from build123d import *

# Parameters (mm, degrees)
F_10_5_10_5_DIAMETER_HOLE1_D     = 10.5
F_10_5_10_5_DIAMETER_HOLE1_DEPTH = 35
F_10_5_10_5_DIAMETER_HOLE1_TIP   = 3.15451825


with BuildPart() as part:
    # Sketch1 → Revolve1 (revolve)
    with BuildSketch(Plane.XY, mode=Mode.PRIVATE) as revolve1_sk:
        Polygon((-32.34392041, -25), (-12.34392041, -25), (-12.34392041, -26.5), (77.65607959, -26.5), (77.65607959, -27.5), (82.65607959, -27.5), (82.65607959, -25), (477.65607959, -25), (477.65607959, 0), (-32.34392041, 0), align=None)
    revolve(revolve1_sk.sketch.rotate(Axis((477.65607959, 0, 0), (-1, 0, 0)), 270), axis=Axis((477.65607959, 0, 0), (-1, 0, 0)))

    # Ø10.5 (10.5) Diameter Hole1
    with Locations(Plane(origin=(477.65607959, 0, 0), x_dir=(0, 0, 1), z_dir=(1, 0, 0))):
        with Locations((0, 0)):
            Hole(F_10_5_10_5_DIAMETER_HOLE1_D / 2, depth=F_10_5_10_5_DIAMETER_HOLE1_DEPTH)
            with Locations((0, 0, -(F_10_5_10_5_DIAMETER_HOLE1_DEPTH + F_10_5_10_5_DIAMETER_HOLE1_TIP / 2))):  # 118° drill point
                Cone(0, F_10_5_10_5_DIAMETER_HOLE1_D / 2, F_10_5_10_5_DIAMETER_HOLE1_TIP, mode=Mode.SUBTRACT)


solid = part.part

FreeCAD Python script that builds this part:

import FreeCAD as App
import Part
import Sketcher

V = App.Vector

doc = App.newDocument("Part")
params = doc.addObject("Spreadsheet::Sheet", "Params")
for row, (alias, value) in enumerate([
    ("sketch1_width", "20 mm"),
    ("sketch1_width2", "90 mm"),
    ("sketch1_width3", "5 mm"),
    ("sketch1_width4", "395 mm"),
    ("sketch1_height", "1 mm"),
    ("revolution_angle", "360 deg"),
    ("sketch2_diameter", "10.5 mm"),
    ("hole_diameter", "10.5 mm"),
    ("hole_depth", "35 mm"),
], start=1):
    params.set(f"A{row}", alias)
    params.set(f"B{row}", "=" + value)
    params.setAlias(f"B{row}", alias)

body = doc.addObject("PartDesign::Body", "Body")

# Sketch on XY plane
sketch1 = body.newObject("Sketcher::SketchObject", "Sketch")
sketch1.AttachmentSupport = (doc.getObject("XY_Plane"), [""])
sketch1.MapMode = "FlatFace"
sketch1.addGeometry(Part.LineSegment(V(-32.3, -25, 0), V(-12.3, -25, 0)), False)
sketch1.addGeometry(Part.LineSegment(V(-12.3, -25, 0), V(-12.3, -26.5, 0)), False)
sketch1.addGeometry(Part.LineSegment(V(-12.3, -26.5, 0), V(77.7, -26.5, 0)), False)
sketch1.addGeometry(Part.LineSegment(V(77.7, -26.5, 0), V(77.7, -27.5, 0)), False)
sketch1.addGeometry(Part.LineSegment(V(77.7, -27.5, 0), V(82.7, -27.5, 0)), False)
sketch1.addGeometry(Part.LineSegment(V(82.7, -27.5, 0), V(82.7, -25, 0)), False)
sketch1.addGeometry(Part.LineSegment(V(82.7, -25, 0), V(477.7, -25, 0)), False)
sketch1.addGeometry(Part.LineSegment(V(477.7, -25, 0), V(477.7, 0, 0)), False)
sketch1.addGeometry(Part.LineSegment(V(477.7, 0, 0), V(-32.3, 0, 0)), False)
sketch1.addGeometry(Part.LineSegment(V(-32.3, 0, 0), V(-32.3, -25, 0)), False)
sketch1.addConstraint(Sketcher.Constraint("Coincident", 0, 2, 1, 1))
sketch1.addConstraint(Sketcher.Constraint("Coincident", 1, 2, 2, 1))
sketch1.addConstraint(Sketcher.Constraint("Coincident", 2, 2, 3, 1))
sketch1.addConstraint(Sketcher.Constraint("Coincident", 3, 2, 4, 1))
sketch1.addConstraint(Sketcher.Constraint("Coincident", 4, 2, 5, 1))
sketch1.addConstraint(Sketcher.Constraint("Coincident", 5, 2, 6, 1))
sketch1.addConstraint(Sketcher.Constraint("Coincident", 6, 2, 7, 1))
sketch1.addConstraint(Sketcher.Constraint("Coincident", 7, 2, 8, 1))
sketch1.addConstraint(Sketcher.Constraint("Coincident", 8, 2, 9, 1))
sketch1.addConstraint(Sketcher.Constraint("Coincident", 9, 2, 0, 1))
sketch1.addConstraint(Sketcher.Constraint("Horizontal", 0))
sketch1.addConstraint(Sketcher.Constraint("Vertical", 1))
sketch1.addConstraint(Sketcher.Constraint("Horizontal", 2))
sketch1.addConstraint(Sketcher.Constraint("Vertical", 3))
sketch1.addConstraint(Sketcher.Constraint("Horizontal", 4))
sketch1.addConstraint(Sketcher.Constraint("Vertical", 5))
sketch1.addConstraint(Sketcher.Constraint("Horizontal", 6))
sketch1.addConstraint(Sketcher.Constraint("Vertical", 7))
sketch1.addConstraint(Sketcher.Constraint("Horizontal", 8))
sketch1.addConstraint(Sketcher.Constraint("Vertical", 9))
sketch1.addConstraint(Sketcher.Constraint("PointOnObject", 7, 2, -1))
sketch1.addConstraint(Sketcher.Constraint("Horizontal", 0, 2, 5, 2))
sketch1.addConstraint(Sketcher.Constraint("DistanceX", 0, 1, 0, 2, 20.0))
sketch1.addConstraint(Sketcher.Constraint("DistanceX", 2, 1, 2, 2, 90.0))
sketch1.addConstraint(Sketcher.Constraint("DistanceX", 4, 1, 4, 2, 5.0))
sketch1.addConstraint(Sketcher.Constraint("DistanceX", 6, 1, 6, 2, 395.0))
sketch1.addConstraint(Sketcher.Constraint("DistanceY", 3, 2, 3, 1, 1.0))
sketch1.addConstraint(Sketcher.Constraint("DistanceY", 7, 1, 7, 2, 25.0))
sketch1.addConstraint(Sketcher.Constraint("DistanceY", 1, 2, 1, 1, 1.5))
sketch1.addConstraint(Sketcher.Constraint("DistanceX", 0, 2, -1, 1, 12.34392))
sketch1.setExpression("Constraints[22]", "Params.sketch1_width")
sketch1.setExpression("Constraints[23]", "Params.sketch1_width2")
sketch1.setExpression("Constraints[24]", "Params.sketch1_width3")
sketch1.setExpression("Constraints[25]", "Params.sketch1_width4")
sketch1.setExpression("Constraints[26]", "Params.sketch1_height")
revolution = body.newObject("PartDesign::Revolution", "Revolution")
revolution.Profile = sketch1
revolution.ReferenceAxis = (sketch1, ["H_Axis"])
revolution.setExpression("Angle", "Params.revolution_angle")

# Sketch on YZ plane
sketch2 = body.newObject("Sketcher::SketchObject", "Sketch001")
sketch2.AttachmentSupport = (doc.getObject("YZ_Plane"), [""])
sketch2.MapMode = "FlatFace"
sketch2.AttachmentOffset = App.Placement(V(0, 0, 477.65608), App.Rotation())
sketch2.addGeometry(Part.Circle(V(0, 0, 0), V(0, 0, 1), 5), False)
sketch2.addConstraint(Sketcher.Constraint("Coincident", 0, 3, -1, 1))
sketch2.addConstraint(Sketcher.Constraint("Diameter", 0, 10.5))
sketch2.setExpression("Constraints[1]", "Params.sketch2_diameter")
doc.recompute()
hole = body.newObject("PartDesign::Hole", "Hole")
hole.Profile = sketch2
hole.ThreadType = "None"
hole.setExpression("Diameter", "Params.hole_diameter")
hole.DepthType = "Dimension"
hole.setExpression("Depth", "Params.hole_depth")
hole.DrillPoint = "Angled"
hole.DrillPointAngle = 118

doc.recompute()
